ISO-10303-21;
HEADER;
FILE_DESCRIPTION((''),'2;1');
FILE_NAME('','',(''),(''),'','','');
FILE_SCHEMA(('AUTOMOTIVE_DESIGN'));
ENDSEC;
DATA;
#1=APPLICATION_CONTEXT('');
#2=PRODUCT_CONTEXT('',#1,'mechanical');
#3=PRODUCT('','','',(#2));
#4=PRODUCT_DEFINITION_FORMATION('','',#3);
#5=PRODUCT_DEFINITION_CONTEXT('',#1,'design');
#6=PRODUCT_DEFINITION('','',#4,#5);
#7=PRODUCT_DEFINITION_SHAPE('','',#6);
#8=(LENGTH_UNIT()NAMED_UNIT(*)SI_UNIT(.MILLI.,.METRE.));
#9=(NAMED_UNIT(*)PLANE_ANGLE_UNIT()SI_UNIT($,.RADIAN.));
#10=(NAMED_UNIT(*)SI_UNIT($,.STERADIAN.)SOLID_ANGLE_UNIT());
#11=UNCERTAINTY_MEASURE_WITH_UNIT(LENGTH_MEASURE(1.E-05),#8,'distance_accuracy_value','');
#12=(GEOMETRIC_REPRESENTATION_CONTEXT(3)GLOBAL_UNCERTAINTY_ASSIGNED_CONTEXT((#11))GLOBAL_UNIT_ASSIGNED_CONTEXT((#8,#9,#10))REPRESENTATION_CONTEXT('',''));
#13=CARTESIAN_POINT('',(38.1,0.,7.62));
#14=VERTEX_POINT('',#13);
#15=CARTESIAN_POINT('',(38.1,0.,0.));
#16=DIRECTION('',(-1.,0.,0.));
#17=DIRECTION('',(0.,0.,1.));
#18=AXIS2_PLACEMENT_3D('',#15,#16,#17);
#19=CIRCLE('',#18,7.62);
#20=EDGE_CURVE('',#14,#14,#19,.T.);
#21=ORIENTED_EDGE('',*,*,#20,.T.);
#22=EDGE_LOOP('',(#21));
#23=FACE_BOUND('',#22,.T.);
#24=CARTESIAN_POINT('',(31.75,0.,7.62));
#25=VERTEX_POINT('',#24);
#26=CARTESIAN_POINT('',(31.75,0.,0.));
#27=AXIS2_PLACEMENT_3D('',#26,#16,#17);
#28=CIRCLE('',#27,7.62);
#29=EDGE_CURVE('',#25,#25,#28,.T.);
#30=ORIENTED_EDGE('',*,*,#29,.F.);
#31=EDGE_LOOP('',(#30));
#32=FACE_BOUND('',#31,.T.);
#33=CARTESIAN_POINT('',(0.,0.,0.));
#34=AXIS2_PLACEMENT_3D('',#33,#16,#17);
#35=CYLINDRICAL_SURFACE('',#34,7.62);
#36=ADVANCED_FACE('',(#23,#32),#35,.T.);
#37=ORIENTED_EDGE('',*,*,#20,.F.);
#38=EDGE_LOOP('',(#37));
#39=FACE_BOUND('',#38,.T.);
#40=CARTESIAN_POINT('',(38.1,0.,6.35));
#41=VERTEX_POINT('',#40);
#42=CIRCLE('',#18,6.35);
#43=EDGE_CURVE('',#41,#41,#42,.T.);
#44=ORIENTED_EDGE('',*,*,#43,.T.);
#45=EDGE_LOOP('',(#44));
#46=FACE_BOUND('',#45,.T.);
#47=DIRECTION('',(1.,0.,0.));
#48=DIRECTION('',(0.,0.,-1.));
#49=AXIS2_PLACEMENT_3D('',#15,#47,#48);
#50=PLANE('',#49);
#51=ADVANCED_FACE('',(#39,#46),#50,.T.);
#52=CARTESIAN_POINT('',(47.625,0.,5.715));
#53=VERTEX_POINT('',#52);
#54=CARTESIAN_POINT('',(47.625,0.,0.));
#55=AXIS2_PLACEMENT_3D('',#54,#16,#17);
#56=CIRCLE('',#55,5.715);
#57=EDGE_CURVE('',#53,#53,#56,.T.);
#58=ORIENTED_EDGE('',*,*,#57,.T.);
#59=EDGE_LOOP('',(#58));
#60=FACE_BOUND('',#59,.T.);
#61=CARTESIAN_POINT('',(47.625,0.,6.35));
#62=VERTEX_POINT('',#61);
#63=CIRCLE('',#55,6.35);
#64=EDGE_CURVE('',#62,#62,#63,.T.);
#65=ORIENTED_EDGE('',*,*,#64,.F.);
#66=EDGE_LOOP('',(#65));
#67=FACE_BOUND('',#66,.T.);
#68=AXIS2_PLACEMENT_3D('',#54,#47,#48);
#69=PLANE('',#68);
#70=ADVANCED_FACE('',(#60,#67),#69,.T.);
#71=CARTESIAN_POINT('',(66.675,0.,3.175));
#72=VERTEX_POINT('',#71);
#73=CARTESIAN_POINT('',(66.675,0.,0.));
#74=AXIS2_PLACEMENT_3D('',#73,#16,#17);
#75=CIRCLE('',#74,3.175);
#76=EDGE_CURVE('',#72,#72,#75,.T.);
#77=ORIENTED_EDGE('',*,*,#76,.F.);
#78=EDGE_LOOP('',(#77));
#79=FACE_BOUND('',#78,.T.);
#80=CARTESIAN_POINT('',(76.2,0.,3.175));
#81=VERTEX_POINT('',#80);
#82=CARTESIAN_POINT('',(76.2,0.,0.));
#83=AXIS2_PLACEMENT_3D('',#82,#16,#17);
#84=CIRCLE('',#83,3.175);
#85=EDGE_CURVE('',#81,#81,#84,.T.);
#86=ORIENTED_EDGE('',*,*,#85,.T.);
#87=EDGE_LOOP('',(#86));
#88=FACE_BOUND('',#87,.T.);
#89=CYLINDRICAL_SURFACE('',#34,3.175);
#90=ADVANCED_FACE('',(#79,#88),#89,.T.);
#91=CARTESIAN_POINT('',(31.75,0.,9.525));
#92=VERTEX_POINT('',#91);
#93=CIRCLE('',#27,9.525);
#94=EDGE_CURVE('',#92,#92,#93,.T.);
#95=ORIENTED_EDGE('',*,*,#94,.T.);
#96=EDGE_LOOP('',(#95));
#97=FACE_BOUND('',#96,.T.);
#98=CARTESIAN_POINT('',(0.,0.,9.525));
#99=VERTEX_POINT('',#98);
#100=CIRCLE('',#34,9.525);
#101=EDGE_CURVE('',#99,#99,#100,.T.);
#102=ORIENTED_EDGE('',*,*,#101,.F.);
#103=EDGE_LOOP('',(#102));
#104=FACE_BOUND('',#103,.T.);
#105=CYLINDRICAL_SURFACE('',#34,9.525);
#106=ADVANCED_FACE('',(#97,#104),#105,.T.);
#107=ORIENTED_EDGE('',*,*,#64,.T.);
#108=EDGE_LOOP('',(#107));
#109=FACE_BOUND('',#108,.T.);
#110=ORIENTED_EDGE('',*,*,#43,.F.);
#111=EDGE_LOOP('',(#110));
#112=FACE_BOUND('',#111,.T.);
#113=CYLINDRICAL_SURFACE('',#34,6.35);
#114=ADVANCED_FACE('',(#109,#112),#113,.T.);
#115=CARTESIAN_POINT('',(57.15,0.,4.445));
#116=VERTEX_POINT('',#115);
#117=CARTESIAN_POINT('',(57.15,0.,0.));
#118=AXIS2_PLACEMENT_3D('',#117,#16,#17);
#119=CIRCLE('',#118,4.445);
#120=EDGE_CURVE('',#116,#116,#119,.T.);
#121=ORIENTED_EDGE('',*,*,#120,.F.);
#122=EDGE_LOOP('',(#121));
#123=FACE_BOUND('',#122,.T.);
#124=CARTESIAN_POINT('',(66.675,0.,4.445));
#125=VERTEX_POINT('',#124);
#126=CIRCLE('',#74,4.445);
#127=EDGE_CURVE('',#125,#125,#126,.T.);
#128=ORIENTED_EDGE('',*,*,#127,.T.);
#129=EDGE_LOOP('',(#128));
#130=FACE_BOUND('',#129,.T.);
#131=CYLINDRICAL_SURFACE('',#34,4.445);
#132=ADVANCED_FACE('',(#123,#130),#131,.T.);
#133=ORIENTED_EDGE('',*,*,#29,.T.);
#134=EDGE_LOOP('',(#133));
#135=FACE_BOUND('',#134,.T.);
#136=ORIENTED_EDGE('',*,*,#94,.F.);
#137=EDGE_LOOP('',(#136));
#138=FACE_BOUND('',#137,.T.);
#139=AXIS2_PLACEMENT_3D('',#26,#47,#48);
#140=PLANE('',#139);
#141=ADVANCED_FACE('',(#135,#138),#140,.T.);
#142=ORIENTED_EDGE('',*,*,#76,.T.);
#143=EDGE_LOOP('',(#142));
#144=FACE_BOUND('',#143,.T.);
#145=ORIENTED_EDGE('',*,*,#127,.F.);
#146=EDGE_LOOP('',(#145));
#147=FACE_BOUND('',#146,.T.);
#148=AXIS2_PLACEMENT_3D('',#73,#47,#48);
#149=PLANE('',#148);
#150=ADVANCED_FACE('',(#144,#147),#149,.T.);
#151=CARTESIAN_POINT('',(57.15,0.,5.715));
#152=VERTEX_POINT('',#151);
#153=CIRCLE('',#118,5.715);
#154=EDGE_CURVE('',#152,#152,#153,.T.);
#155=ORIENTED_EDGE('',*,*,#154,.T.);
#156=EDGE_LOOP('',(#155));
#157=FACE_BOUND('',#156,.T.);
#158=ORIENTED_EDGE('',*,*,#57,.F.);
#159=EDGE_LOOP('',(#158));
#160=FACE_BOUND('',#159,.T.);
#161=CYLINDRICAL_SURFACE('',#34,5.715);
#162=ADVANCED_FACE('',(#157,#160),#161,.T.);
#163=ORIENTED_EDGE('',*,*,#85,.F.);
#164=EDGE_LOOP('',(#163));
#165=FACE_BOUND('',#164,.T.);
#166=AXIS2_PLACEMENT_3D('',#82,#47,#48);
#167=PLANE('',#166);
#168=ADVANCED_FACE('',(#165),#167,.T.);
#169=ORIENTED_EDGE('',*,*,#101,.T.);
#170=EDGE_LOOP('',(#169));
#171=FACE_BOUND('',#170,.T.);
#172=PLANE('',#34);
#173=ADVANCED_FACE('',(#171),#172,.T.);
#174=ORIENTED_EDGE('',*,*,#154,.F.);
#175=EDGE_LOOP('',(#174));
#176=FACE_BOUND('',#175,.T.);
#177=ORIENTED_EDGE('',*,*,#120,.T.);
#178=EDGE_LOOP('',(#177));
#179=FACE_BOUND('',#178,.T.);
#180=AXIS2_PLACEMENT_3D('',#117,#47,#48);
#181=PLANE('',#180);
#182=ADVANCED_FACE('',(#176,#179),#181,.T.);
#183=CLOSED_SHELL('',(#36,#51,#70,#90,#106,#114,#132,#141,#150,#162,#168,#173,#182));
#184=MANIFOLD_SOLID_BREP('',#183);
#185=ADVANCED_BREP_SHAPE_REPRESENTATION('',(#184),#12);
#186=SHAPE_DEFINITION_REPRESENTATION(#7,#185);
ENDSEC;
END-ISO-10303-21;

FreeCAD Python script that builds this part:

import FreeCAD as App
import Part
import Sketcher
from FreeCAD import Vector
Q = App.Units.Quantity

doc = App.newDocument("Part")
body = doc.addObject("PartDesign::Body", "Body")

sketch1 = body.newObject("Sketcher::SketchObject", "Sketch")
sketch1.AttachmentSupport = (doc.getObject("XY_Plane"), [""])
sketch1.MapMode = "FlatFace"
sketch1.addGeometry([
    Part.LineSegment(Vector(0, 9.5, 0), Vector(0, 0, 0)),
    Part.LineSegment(Vector(0, 0, 0), Vector(76.2, 0, 0)),
    Part.LineSegment(Vector(76.2, 0, 0), Vector(76.2, 3.2, 0)),
    Part.LineSegment(Vector(76.2, 3.2, 0), Vector(66.7, 3.2, 0)),
    Part.LineSegment(Vector(66.7, 3.2, 0), Vector(66.7, 4.4, 0)),
    Part.LineSegment(Vector(66.7, 4.4, 0), Vector(57.1, 4.4, 0)),
    Part.LineSegment(Vector(57.1, 4.4, 0), Vector(57.1, 5.7, 0)),
    Part.LineSegment(Vector(57.1, 5.7, 0), Vector(47.6, 5.7, 0)),
    Part.LineSegment(Vector(47.6, 5.7, 0), Vector(47.6, 6.3, 0)),
    Part.LineSegment(Vector(47.6, 6.3, 0), Vector(38.1, 6.3, 0)),
    Part.LineSegment(Vector(38.1, 6.3, 0), Vector(38.1, 7.6, 0)),
    Part.LineSegment(Vector(38.1, 7.6, 0), Vector(31.8, 7.6, 0)),
    Part.LineSegment(Vector(31.8, 7.6, 0), Vector(31.8, 9.5, 0)),
    Part.LineSegment(Vector(31.8, 9.5, 0), Vector(0, 9.5, 0)),
], False)
sketch1.addConstraint([
    Sketcher.Constraint("Coincident", 0, 2, 1, 1),
    Sketcher.Constraint("Coincident", 1, 2, 2, 1),
    Sketcher.Constraint("Coincident", 2, 2, 3, 1),
    Sketcher.Constraint("Coincident", 3, 2, 4, 1),
    Sketcher.Constraint("Coincident", 4, 2, 5, 1),
    Sketcher.Constraint("Coincident", 5, 2, 6, 1),
    Sketcher.Constraint("Coincident", 6, 2, 7, 1),
    Sketcher.Constraint("Coincident", 7, 2, 8, 1),
    Sketcher.Constraint("Coincident", 8, 2, 9, 1),
    Sketcher.Constraint("Coincident", 9, 2, 10, 1),
    Sketcher.Constraint("Coincident", 10, 2, 11, 1),
    Sketcher.Constraint("Coincident", 11, 2, 12, 1),
    Sketcher.Constraint("Coincident", 12, 2, 13, 1),
    Sketcher.Constraint("Coincident", 13, 2, 0, 1),
    Sketcher.Constraint("Vertical", 0),
    Sketcher.Constraint("Horizontal", 1),
    Sketcher.Constraint("Vertical", 2),
    Sketcher.Constraint("Horizontal", 3),
    Sketcher.Constraint("Vertical", 4),
    Sketcher.Constraint("Horizontal", 5),
    Sketcher.Constraint("Vertical", 6),
    Sketcher.Constraint("Horizontal", 7),
    Sketcher.Constraint("Vertical", 8),
    Sketcher.Constraint("Horizontal", 9),
    Sketcher.Constraint("Vertical", 10),
    Sketcher.Constraint("Horizontal", 11),
    Sketcher.Constraint("Vertical", 12),
    Sketcher.Constraint("Horizontal", 13),
    Sketcher.Constraint("Coincident", 0, 2, -1, 1),
    Sketcher.Constraint("Equal", 3, 5),
    Sketcher.Constraint("Equal", 5, 7),
    Sketcher.Constraint("Equal", 7, 9),
    Sketcher.Constraint("Equal", 9, 0),
    Sketcher.Constraint("Equal", 4, 6),
    Sketcher.Constraint("Equal", 6, 10),
    Sketcher.Constraint("DistanceX", 1, 1, 1, 2, Q("3 in")),
    Sketcher.Constraint("DistanceX", 11, 2, 6, 2, Q("1 in")),
    Sketcher.Constraint("DistanceX", 11, 2, 11, 1, Q("0.25 in")),
    Sketcher.Constraint("DistanceY", 4, 1, 4, 2, Q("0.05 in")),
    Sketcher.Constraint("DistanceY", -1, 1, 10, 2, Q("0.3 in")),
    Sketcher.Constraint("DistanceY", 2, 1, 2, 2, Q("0.125 in")),
])
revolution = body.newObject("PartDesign::Revolution", "Revolution")
revolution.Profile = sketch1
revolution.ReferenceAxis = (sketch1, ["H_Axis"])
revolution.Angle = 360

doc.recompute()
